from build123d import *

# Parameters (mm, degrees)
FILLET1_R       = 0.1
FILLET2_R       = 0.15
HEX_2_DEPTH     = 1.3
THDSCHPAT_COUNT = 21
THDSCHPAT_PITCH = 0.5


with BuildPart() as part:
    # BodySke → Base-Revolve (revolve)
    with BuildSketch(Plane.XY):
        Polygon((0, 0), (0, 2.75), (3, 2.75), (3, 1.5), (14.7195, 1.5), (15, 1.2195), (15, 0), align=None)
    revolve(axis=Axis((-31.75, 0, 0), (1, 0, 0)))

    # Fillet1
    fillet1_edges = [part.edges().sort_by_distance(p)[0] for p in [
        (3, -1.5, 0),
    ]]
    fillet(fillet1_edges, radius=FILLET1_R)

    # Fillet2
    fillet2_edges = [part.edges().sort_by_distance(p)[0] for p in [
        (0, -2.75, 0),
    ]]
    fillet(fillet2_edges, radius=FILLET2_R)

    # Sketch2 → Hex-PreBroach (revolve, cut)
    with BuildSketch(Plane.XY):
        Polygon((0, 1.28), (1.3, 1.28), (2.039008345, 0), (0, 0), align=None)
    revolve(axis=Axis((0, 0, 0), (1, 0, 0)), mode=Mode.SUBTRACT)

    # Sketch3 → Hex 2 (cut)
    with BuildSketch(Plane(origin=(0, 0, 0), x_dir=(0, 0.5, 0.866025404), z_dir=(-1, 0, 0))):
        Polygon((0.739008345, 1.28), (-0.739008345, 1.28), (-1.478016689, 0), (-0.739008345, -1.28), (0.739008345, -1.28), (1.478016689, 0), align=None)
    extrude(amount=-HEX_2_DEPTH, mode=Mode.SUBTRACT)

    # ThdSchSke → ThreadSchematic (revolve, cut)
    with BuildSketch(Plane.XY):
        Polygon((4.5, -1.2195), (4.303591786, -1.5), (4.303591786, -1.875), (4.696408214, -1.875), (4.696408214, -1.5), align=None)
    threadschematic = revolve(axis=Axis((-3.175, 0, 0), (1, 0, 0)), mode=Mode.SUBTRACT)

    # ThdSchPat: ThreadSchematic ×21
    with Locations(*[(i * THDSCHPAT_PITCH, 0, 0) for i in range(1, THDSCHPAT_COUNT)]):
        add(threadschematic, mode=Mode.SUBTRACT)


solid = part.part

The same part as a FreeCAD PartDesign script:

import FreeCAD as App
import Part
import Sketcher

V = App.Vector
Q = App.Units.Quantity


def edges_at(feature, points):
    """Names of the edges that pass closest to the given points."""
    edges = feature.Shape.Edges
    near = lambda p: min(range(len(edges)), key=lambda i: edges[i].distToShape(Part.Vertex(*p))[0])
    return sorted({f"Edge{near(p) + 1}" for p in points})


def add_polygon(sketch, points):
    """Adds a closed chain of lines whose ends are joined by coincident constraints."""
    first, n = sketch.GeometryCount, len(points)
    for a, b in zip(points, points[1:] + points[:1]):
        sketch.addGeometry(Part.LineSegment(App.Vector(*a, 0), App.Vector(*b, 0)), False)
    for i in range(n):
        sketch.addConstraint(Sketcher.Constraint("Coincident", first + i, 2, first + (i + 1) % n, 1))

doc = App.newDocument("Part")
body = doc.addObject("PartDesign::Body", "Body")

sketch1 = body.newObject("Sketcher::SketchObject", "Sketch")
sketch1.AttachmentSupport = (doc.getObject("XY_Plane"), [""])
sketch1.MapMode = "FlatFace"
add_polygon(sketch1, [(0, 2.75), (0, 0), (15, 0), (15, 1.22), (14.72, 1.5), (3, 1.5), (3, 2.75)])
sketch1.addConstraint([
    Sketcher.Constraint("Vertical", 0),
    Sketcher.Constraint("Horizontal", 1),
    Sketcher.Constraint("Vertical", 2),
    Sketcher.Constraint("Horizontal", 4),
    Sketcher.Constraint("Vertical", 5),
    Sketcher.Constraint("Horizontal", 6),
    Sketcher.Constraint("Coincident", 0, 2, -1, 1),
    Sketcher.Constraint("DistanceX", 1, 1, 1, 2, 15.0),
    Sketcher.Constraint("DistanceX", 6, 2, 6, 1, 3.0),
    Sketcher.Constraint("Angle", 3, Q("135 deg")),
    Sketcher.Constraint("DistanceY", 0, 2, 0, 1, 2.75),
    Sketcher.Constraint("DistanceY", 5, 1, 5, 2, 1.25),
    Sketcher.Constraint("DistanceX", 4, 2, 4, 1, 11.7195),
])
revolution = body.newObject("PartDesign::Revolution", "Revolution")
revolution.Profile = sketch1
revolution.ReferenceAxis = (sketch1, ["H_Axis"])
revolution.Angle = 360
doc.recompute()

fillet = body.newObject("PartDesign::Fillet", "Fillet")
fillet.Base = (revolution, edges_at(revolution, [(3, -1.5, 0)]))
fillet.Radius = 0.1
doc.recompute()

fillet2 = body.newObject("PartDesign::Fillet", "Fillet001")
fillet2.Base = (fillet, edges_at(fillet, [(0, -2.75, 0)]))
fillet2.Radius = 0.15

sketch2 = body.newObject("Sketcher::SketchObject", "Sketch001")
sketch2.AttachmentSupport = (doc.getObject("XY_Plane"), [""])
sketch2.MapMode = "FlatFace"
add_polygon(sketch2, [(1.3, 1.3), (0, 1.3), (0, 0), (2, 0)])
sketch2.addConstraint([
    Sketcher.Constraint("Horizontal", 0),
    Sketcher.Constraint("Vertical", 1),
    Sketcher.Constraint("Horizontal", 2),
    Sketcher.Constraint("Coincident", 1, 2, -1, 1),
    Sketcher.Constraint("Angle", 3, Q("120 deg")),
    Sketcher.Constraint("DistanceX", 0, 2, 0, 1, 1.3),
    Sketcher.Constraint("DistanceY", 1, 2, 1, 1, 1.28),
])
groove = body.newObject("PartDesign::Groove", "Groove")
groove.Profile = sketch2
groove.ReferenceAxis = (sketch2, ["H_Axis"])
groove.Angle = 360

sketch3 = body.newObject("Sketcher::SketchObject", "Sketch002")
sketch3.AttachmentSupport = (doc.getObject("YZ_Plane"), [""])
sketch3.MapMode = "FlatFace"
add_polygon(sketch3, [(1.5, 0), (0.7, -1.3), (-0.7, -1.3), (-1.5, 0), (-0.7, 1.3), (0.7, 1.3)])
sketch3.addConstraint([
    Sketcher.Constraint("Horizontal", 1),
    Sketcher.Constraint("Horizontal", 4),
    Sketcher.Constraint("Symmetric", 0, 2, 3, 2, -1, 1),
    Sketcher.Constraint("Symmetric", 2, 2, 5, 2, -1, 1),
    Sketcher.Constraint("PointOnObject", 2, 2, -1),
    Sketcher.Constraint("Parallel", 2, 5),
    Sketcher.Constraint("Vertical", 1, 2, 3, 2),
    Sketcher.Constraint("Angle", 0, Q("-120 deg")),
    Sketcher.Constraint("DistanceY", 0, 2, -1, 1, 1.28),
    Sketcher.Constraint("DistanceX", 1, 2, 1, 1, 1.478017),
])
pocket1 = body.newObject("PartDesign::Pocket", "Pocket")
pocket1.Profile = sketch3
pocket1.Length = 1.3
pocket1.Reversed = True

sketch4 = body.newObject("Sketcher::SketchObject", "Sketch003")
sketch4.AttachmentSupport = (doc.getObject("XY_Plane"), [""])
sketch4.MapMode = "FlatFace"
add_polygon(sketch4, [(4.5, -1.22), (4.3, -1.5), (4.3, -1.88), (4.7, -1.88), (4.7, -1.5)])
sketch4.addConstraint([
    Sketcher.Constraint("Vertical", 1),
    Sketcher.Constraint("Horizontal", 2),
    Sketcher.Constraint("Vertical", 3),
    Sketcher.Constraint("Horizontal", 0, 2, 3, 2),
    Sketcher.Constraint("Equal", 0, 4),
    Sketcher.Constraint("Angle", 0, Q("-125 deg")),
    Sketcher.Constraint("DistanceY", 0, 2, -1, 1, 1.5),
    Sketcher.Constraint("DistanceX", -1, 1, 4, 2, 4.5),
    Sketcher.Constraint("DistanceY", 1, 2, 1, 1, 0.375),
    Sketcher.Constraint("DistanceY", 4, 2, -1, 1, 1.2195),
])
groove2 = body.newObject("PartDesign::Groove", "Groove001")
groove2.Profile = sketch4
groove2.ReferenceAxis = (sketch4, ["H_Axis"])
groove2.Angle = 360
doc.recompute()

linearpattern = body.newObject("PartDesign::LinearPattern", "LinearPattern")
linearpattern.Originals = [groove2]
linearpattern.Direction = (doc.getObject("X_Axis"), [""])
linearpattern.Mode = "offset"
linearpattern.Offset = 0.5
linearpattern.Occurrences = 21
body.Tip = linearpattern

doc.recompute()
